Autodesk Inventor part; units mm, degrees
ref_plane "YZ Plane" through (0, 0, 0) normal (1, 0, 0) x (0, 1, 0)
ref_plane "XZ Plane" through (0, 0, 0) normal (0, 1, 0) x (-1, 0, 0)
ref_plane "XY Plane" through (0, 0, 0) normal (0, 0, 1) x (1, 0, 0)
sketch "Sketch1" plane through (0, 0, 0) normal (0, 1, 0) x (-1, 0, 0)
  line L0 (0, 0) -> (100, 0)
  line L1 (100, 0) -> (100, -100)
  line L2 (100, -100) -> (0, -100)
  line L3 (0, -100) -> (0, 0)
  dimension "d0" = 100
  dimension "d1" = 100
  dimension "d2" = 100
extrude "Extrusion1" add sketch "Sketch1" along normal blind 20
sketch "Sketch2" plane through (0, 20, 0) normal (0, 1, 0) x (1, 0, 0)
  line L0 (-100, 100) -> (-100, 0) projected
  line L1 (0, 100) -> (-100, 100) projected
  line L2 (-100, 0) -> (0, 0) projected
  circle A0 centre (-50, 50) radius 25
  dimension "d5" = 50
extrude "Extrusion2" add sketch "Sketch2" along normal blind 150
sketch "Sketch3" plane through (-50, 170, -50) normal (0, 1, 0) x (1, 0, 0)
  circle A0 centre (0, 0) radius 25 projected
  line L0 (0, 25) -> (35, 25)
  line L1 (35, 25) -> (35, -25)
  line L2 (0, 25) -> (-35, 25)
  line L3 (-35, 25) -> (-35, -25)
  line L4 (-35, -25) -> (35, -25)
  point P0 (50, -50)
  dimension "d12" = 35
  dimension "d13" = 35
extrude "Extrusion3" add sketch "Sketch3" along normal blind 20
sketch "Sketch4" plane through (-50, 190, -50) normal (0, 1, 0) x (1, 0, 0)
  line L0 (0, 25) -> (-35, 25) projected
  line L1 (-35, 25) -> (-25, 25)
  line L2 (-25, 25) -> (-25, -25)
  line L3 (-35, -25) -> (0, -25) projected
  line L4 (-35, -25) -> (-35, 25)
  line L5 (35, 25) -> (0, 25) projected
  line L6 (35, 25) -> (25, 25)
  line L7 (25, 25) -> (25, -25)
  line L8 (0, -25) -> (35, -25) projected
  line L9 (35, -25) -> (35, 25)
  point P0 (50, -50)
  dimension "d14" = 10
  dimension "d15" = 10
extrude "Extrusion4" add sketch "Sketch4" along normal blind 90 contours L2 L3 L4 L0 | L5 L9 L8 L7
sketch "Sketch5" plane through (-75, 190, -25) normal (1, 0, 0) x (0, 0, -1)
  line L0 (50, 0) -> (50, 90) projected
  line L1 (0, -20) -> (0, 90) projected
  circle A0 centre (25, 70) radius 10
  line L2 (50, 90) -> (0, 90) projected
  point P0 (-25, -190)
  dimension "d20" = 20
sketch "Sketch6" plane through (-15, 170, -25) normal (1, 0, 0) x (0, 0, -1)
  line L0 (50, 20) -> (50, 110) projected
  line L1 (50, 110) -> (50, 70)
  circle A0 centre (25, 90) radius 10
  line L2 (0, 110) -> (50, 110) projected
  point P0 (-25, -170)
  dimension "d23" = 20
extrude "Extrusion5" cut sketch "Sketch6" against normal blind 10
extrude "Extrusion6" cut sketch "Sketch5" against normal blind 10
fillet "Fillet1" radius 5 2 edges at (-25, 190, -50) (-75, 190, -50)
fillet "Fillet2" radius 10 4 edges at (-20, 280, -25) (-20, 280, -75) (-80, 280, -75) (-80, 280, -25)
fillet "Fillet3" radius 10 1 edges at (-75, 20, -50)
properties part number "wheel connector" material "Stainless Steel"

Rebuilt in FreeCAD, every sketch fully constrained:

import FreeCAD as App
import Part
import Sketcher
Q = App.Units.Quantity


def edges_at(feature, points):
    """Names of the edges that pass closest to the given points."""
    edges = feature.Shape.Edges
    near = lambda p: min(range(len(edges)), key=lambda i: edges[i].distToShape(Part.Vertex(*p))[0])
    return sorted({f"Edge{near(p) + 1}" for p in points})


def add_polygon(sketch, points):
    """Adds a closed chain of lines whose ends are joined by coincident constraints."""
    first, n = sketch.GeometryCount, len(points)
    for a, b in zip(points, points[1:] + points[:1]):
        sketch.addGeometry(Part.LineSegment(App.Vector(*a, 0), App.Vector(*b, 0)), False)
    for i in range(n):
        sketch.addConstraint(Sketcher.Constraint("Coincident", first + i, 2, first + (i + 1) % n, 1))

doc = App.newDocument("Part")
body = doc.addObject("PartDesign::Body", "Body")

sketch1 = doc.addObject("Sketcher::SketchObject", "Sketch")
body.addObject(sketch1)
sketch1.AttachmentSupport = (doc.XZ_Plane, [""])
sketch1.MapMode = "FlatFace"
add_polygon(sketch1, [(-100, 0), (0, 0), (0, -100), (-100, -100)])
sketch1.addConstraint([
    Sketcher.Constraint("Horizontal", 0),
    Sketcher.Constraint("Vertical", 1),
    Sketcher.Constraint("Horizontal", 2),
    Sketcher.Constraint("Vertical", 3),
    Sketcher.Constraint("Coincident", 0, 2, -1, 1),
    Sketcher.Constraint("Equal", 2, 1),
    Sketcher.Constraint("DistanceX", 0, 1, 0, 2, Q("100 mm")),
])
pad1 = doc.addObject("PartDesign::Pad", "Pad")
body.addObject(pad1)
pad1.Profile = sketch1
pad1.Length = 20
pad1.Reversed = True

sketch2 = doc.addObject("Sketcher::SketchObject", "Sketch001")
body.addObject(sketch2)
sketch2.AttachmentSupport = (doc.XZ_Plane, [""])
sketch2.MapMode = "FlatFace"
sketch2.AttachmentOffset = App.Placement(App.Vector(0, 0, -20), App.Rotation())
sketch2.addGeometry(Part.Circle(App.Vector(-50, -50, 0), App.Vector(0, 0, 1), 25), False)
sketch2.addConstraint([
    Sketcher.Constraint("Diameter", 0, Q("50 mm")),
    Sketcher.Constraint("DistanceX", 0, 3, -1, 1, Q("50 mm")),
    Sketcher.Constraint("DistanceY", 0, 3, -1, 1, Q("50 mm")),
])
pad2 = doc.addObject("PartDesign::Pad", "Pad001")
body.addObject(pad2)
pad2.Profile = sketch2
pad2.Length = 150
pad2.Reversed = True

sketch3 = doc.addObject("Sketcher::SketchObject", "Sketch002")
body.addObject(sketch3)
sketch3.AttachmentSupport = (doc.XZ_Plane, [""])
sketch3.MapMode = "FlatFace"
sketch3.AttachmentOffset = App.Placement(App.Vector(0, 0, -170), App.Rotation())
add_polygon(sketch3, [(-15, -25), (-15, -75), (-85, -75), (-85, -25)])
sketch3.addConstraint([
    Sketcher.Constraint("Vertical", 0),
    Sketcher.Constraint("Horizontal", 1),
    Sketcher.Constraint("Vertical", 2),
    Sketcher.Constraint("Horizontal", 3),
    Sketcher.Constraint("DistanceX", 1, 2, 1, 1, Q("70 mm")),
    Sketcher.Constraint("DistanceY", 0, 2, 0, 1, Q("50 mm")),
    Sketcher.Constraint("DistanceX", 0, 2, -1, 1, Q("15 mm")),
    Sketcher.Constraint("DistanceY", 0, 2, -1, 1, Q("75 mm")),
])
pad3 = doc.addObject("PartDesign::Pad", "Pad002")
body.addObject(pad3)
pad3.Profile = sketch3
pad3.Length = 20
pad3.Reversed = True

sketch4 = doc.addObject("Sketcher::SketchObject", "Sketch003")
body.addObject(sketch4)
sketch4.AttachmentSupport = (doc.XZ_Plane, [""])
sketch4.MapMode = "FlatFace"
sketch4.AttachmentOffset = App.Placement(App.Vector(0, 0, -190), App.Rotation())
add_polygon(sketch4, [(-75, -25), (-75, -75), (-85, -75), (-85, -25)])
add_polygon(sketch4, [(-15, -75), (-25, -75), (-25, -25), (-15, -25)])
sketch4.addConstraint([
    Sketcher.Constraint("Vertical", 0),
    Sketcher.Constraint("Horizontal", 1),
    Sketcher.Constraint("Vertical", 2),
    Sketcher.Constraint("Horizontal", 3),
    Sketcher.Constraint("Horizontal", 4),
    Sketcher.Constraint("Vertical", 5),
    Sketcher.Constraint("Horizontal", 6),
    Sketcher.Constraint("Vertical", 7),
    Sketcher.Constraint("Horizontal", 1, 2, 4, 2),
    Sketcher.Constraint("Horizontal", 3, 2, 5, 2),
    Sketcher.Constraint("Equal", 3, 4),
    Sketcher.Constraint("DistanceX", 1, 2, 1, 1, Q("10 mm")),
    Sketcher.Constraint("DistanceY", 0, 2, 0, 1, Q("50 mm")),
    Sketcher.Constraint("DistanceX", 0, 2, -1, 1, Q("75 mm")),
    Sketcher.Constraint("DistanceY", 0, 2, -1, 1, Q("75 mm")),
    Sketcher.Constraint("DistanceX", 4, 2, -1, 1, Q("25 mm")),
])
pad4 = doc.addObject("PartDesign::Pad", "Pad003")
body.addObject(pad4)
pad4.Profile = sketch4
pad4.Length = 90
pad4.Reversed = True

sketch5 = doc.addObject("Sketcher::SketchObject", "Sketch004")
body.addObject(sketch5)
sketch5.AttachmentSupport = (doc.YZ_Plane, [""])
sketch5.MapMode = "FlatFace"
sketch5.AttachmentOffset = App.Placement(App.Vector(0, 0, -15), App.Rotation())
sketch5.addGeometry(Part.Circle(App.Vector(260, -50, 0), App.Vector(0, 0, 1), 10), False)
sketch5.addConstraint([
    Sketcher.Constraint("Diameter", 0, Q("20 mm")),
    Sketcher.Constraint("DistanceX", -1, 1, 0, 3, Q("260 mm")),
    Sketcher.Constraint("DistanceY", 0, 3, -1, 1, Q("50 mm")),
])
pocket1 = doc.addObject("PartDesign::Pocket", "Pocket")
body.addObject(pocket1)
pocket1.Profile = sketch5
pocket1.Length = 10

sketch6 = doc.addObject("Sketcher::SketchObject", "Sketch005")
body.addObject(sketch6)
sketch6.AttachmentSupport = (doc.YZ_Plane, [""])
sketch6.MapMode = "FlatFace"
sketch6.AttachmentOffset = App.Placement(App.Vector(0, 0, -75), App.Rotation())
sketch6.addGeometry(Part.Circle(App.Vector(260, -50, 0), App.Vector(0, 0, 1), 10), False)
sketch6.addConstraint([
    Sketcher.Constraint("Diameter", 0, Q("20 mm")),
    Sketcher.Constraint("DistanceX", -1, 1, 0, 3, Q("260 mm")),
    Sketcher.Constraint("DistanceY", 0, 3, -1, 1, Q("50 mm")),
])
pocket2 = doc.addObject("PartDesign::Pocket", "Pocket001")
body.addObject(pocket2)
pocket2.Profile = sketch6
pocket2.Length = 10
doc.recompute()

fillet = doc.addObject("PartDesign::Fillet", "Fillet")
body.addObject(fillet)
fillet.Base = (pocket2, edges_at(pocket2, [(-25, 190, -50), (-75, 190, -50)]))
fillet.Radius = 5
doc.recompute()

fillet2 = doc.addObject("PartDesign::Fillet", "Fillet001")
body.addObject(fillet2)
fillet2.Base = (fillet, edges_at(fillet, [
    (-20, 280, -25),
    (-20, 280, -75),
    (-80, 280, -75),
    (-80, 280, -25),
]))
fillet2.Radius = 10
doc.recompute()

fillet3 = doc.addObject("PartDesign::Fillet", "Fillet002")
body.addObject(fillet3)
fillet3.Base = (fillet2, edges_at(fillet2, [(-75, 20, -50)]))
fillet3.Radius = 10

doc.recompute()
